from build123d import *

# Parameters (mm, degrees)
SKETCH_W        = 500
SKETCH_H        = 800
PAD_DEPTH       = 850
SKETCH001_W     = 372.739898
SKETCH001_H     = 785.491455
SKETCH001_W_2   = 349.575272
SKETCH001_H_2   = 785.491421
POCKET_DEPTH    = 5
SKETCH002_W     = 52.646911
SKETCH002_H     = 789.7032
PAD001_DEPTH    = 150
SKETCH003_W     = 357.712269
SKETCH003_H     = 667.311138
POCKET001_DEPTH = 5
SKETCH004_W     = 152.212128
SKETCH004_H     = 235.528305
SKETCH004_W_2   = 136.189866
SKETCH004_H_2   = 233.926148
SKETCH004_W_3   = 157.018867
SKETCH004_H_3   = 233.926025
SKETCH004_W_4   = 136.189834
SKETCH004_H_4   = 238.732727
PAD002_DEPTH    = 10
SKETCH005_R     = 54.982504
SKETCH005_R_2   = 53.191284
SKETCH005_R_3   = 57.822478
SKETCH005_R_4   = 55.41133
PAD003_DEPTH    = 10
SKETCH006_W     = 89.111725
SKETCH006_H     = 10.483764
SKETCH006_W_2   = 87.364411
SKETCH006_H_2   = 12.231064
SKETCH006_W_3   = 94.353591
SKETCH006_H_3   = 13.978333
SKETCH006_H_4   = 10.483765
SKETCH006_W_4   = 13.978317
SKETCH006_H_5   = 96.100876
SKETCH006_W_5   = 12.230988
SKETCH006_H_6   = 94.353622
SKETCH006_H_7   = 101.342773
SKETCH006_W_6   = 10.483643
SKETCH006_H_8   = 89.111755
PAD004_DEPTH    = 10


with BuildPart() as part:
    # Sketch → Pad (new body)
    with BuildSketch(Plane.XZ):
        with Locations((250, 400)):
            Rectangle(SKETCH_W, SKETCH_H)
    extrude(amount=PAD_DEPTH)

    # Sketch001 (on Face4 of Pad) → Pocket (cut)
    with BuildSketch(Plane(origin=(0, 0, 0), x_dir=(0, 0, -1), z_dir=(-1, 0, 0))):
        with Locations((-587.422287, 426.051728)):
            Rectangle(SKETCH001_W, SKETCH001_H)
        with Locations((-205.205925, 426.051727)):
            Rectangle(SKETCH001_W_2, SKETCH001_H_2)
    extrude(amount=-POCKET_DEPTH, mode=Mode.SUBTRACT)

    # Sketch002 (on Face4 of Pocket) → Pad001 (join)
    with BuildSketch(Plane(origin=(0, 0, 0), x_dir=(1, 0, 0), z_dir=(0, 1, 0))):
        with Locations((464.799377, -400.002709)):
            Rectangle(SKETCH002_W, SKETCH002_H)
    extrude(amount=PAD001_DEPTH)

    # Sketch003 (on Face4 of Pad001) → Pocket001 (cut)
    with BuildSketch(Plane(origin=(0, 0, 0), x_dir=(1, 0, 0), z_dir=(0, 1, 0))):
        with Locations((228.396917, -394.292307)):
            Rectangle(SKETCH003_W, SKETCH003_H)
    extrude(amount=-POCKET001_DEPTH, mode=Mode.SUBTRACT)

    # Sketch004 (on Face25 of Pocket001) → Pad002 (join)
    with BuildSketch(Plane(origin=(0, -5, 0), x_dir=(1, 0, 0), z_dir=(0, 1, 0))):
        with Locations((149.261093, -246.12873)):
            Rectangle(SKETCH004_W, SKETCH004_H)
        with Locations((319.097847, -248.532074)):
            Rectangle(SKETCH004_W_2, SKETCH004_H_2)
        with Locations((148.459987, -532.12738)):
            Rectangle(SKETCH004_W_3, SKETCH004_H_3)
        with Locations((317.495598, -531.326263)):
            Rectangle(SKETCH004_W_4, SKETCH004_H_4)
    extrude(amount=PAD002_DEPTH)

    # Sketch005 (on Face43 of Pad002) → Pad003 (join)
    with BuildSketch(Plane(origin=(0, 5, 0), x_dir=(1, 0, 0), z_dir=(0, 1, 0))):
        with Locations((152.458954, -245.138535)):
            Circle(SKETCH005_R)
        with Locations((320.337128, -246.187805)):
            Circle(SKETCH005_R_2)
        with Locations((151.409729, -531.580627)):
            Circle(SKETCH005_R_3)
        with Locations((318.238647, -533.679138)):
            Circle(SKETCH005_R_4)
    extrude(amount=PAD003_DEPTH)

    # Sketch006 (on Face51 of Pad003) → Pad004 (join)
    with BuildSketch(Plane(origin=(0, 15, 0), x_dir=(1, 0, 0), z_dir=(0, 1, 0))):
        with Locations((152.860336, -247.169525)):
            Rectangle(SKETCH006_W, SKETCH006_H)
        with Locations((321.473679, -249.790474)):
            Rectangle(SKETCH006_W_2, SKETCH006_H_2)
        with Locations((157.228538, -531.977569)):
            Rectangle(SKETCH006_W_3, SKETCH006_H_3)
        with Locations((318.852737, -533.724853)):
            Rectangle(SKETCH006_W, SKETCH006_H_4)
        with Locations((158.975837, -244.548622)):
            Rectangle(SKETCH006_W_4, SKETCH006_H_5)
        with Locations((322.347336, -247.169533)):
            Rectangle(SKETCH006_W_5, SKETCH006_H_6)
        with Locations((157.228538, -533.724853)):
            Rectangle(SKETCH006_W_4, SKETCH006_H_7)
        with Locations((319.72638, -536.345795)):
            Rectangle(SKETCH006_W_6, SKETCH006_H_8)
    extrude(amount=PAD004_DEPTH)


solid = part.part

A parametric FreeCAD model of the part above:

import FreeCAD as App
import Part
import Sketcher


def add_polygon(sketch, points):
    """Adds a closed chain of lines whose ends are joined by coincident constraints."""
    first, n = sketch.GeometryCount, len(points)
    for a, b in zip(points, points[1:] + points[:1]):
        sketch.addGeometry(Part.LineSegment(App.Vector(*a, 0), App.Vector(*b, 0)), False)
    for i in range(n):
        sketch.addConstraint(Sketcher.Constraint("Coincident", first + i, 2, first + (i + 1) % n, 1))

doc = App.newDocument("Part")
body = doc.addObject("PartDesign::Body", "Body")

# Sketch on XZ plane
sketch1 = body.newObject("Sketcher::SketchObject", "Sketch")
sketch1.AttachmentSupport = (doc.getObject("XZ_Plane"), [""])
sketch1.MapMode = "FlatFace"
add_polygon(sketch1, [(0, 800), (0, 0), (500, 0), (500, 800)])  # lines 0-3
sketch1.addConstraint([
    Sketcher.Constraint("Vertical", 0),
    Sketcher.Constraint("Horizontal", 1),
    Sketcher.Constraint("Vertical", 2),
    Sketcher.Constraint("Horizontal", 3),
    Sketcher.Constraint("Coincident", 0, 2, -1, 1),
    Sketcher.Constraint("DistanceX", 1, 1, 1, 2, 500.0),
    Sketcher.Constraint("DistanceY", 0, 2, 0, 1, 800.0),
])
pad1 = body.newObject("PartDesign::Pad", "Pad")
pad1.Profile = sketch1
pad1.Length = 850

# Sketch on YZ plane
sketch2 = body.newObject("Sketcher::SketchObject", "Sketch001")
sketch2.AttachmentSupport = (doc.getObject("YZ_Plane"), [""])
sketch2.MapMode = "FlatFace"
add_polygon(sketch2, [(-819, 774), (-33, 774), (-33, 401), (-819, 401)])  # lines 0-3
add_polygon(sketch2, [(-819, 380), (-33, 380), (-33, 30), (-819, 30)])  # lines 4-7
sketch2.addConstraint([
    Sketcher.Constraint("Horizontal", 0),
    Sketcher.Constraint("Vertical", 1),
    Sketcher.Constraint("Horizontal", 2),
    Sketcher.Constraint("Vertical", 3),
    Sketcher.Constraint("Horizontal", 4),
    Sketcher.Constraint("Vertical", 5),
    Sketcher.Constraint("Horizontal", 6),
    Sketcher.Constraint("Vertical", 7),
    Sketcher.Constraint("DistanceY", 1, 2, 1, 1, 372.739898),
    Sketcher.Constraint("DistanceX", 0, 2, -1, 1, 33.306001),
    Sketcher.Constraint("DistanceX", 4, 1, 4, 2, 785.491421),
    Sketcher.Constraint("DistanceY", 5, 2, 5, 1, 349.575272),
    Sketcher.Constraint("DistanceX", 0, 1, 0, 2, 785.491455),
    Sketcher.Constraint("DistanceY", -1, 1, 1, 2, 401.052338),
    Sketcher.Constraint("DistanceY", -1, 1, 4, 2, 379.993561),
    Sketcher.Constraint("DistanceX", 2, 2, 4, 2, 785.491439),
])
pocket1 = body.newObject("PartDesign::Pocket", "Pocket")
pocket1.Profile = sketch2
pocket1.Length = 5
pocket1.Reversed = True

# Sketch on XZ plane
sketch3 = body.newObject("Sketcher::SketchObject", "Sketch002")
sketch3.AttachmentSupport = (doc.getObject("XZ_Plane"), [""])
sketch3.MapMode = "FlatFace"
add_polygon(sketch3, [(438, 5), (438, 795), (491, 795), (491, 5)])  # lines 0-3
sketch3.addConstraint([
    Sketcher.Constraint("Vertical", 0),
    Sketcher.Constraint("Horizontal", 1),
    Sketcher.Constraint("Vertical", 2),
    Sketcher.Constraint("Horizontal", 3),
    Sketcher.Constraint("DistanceY", 0, 1, 0, 2, 789.7032),
    Sketcher.Constraint("DistanceX", 1, 1, 1, 2, 52.646911),
    Sketcher.Constraint("DistanceX", -1, 1, 0, 2, 438.475922),
    Sketcher.Constraint("DistanceY", -1, 1, 0, 2, 794.854309),
])
pad2 = body.newObject("PartDesign::Pad", "Pad001")
pad2.Profile = sketch3
pad2.Length = 150
pad2.Reversed = True

# Sketch on XZ plane
sketch4 = body.newObject("Sketcher::SketchObject", "Sketch003")
sketch4.AttachmentSupport = (doc.getObject("XZ_Plane"), [""])
sketch4.MapMode = "FlatFace"
add_polygon(sketch4, [(50, 61), (50, 728), (407, 728), (407, 61)])  # lines 0-3
sketch4.addConstraint([
    Sketcher.Constraint("Vertical", 0),
    Sketcher.Constraint("Horizontal", 1),
    Sketcher.Constraint("Vertical", 2),
    Sketcher.Constraint("Horizontal", 3),
    Sketcher.Constraint("DistanceX", 1, 1, 1, 2, 357.712269),
    Sketcher.Constraint("DistanceY", 0, 1, 0, 2, 667.311138),
    Sketcher.Constraint("DistanceX", -1, 1, 1, 2, 407.253052),
    Sketcher.Constraint("DistanceY", -1, 1, 0, 2, 727.947876),
])
pocket2 = body.newObject("PartDesign::Pocket", "Pocket001")
pocket2.Profile = sketch4
pocket2.Length = 5
pocket2.Reversed = True

# Sketch on XZ plane
sketch5 = body.newObject("Sketcher::SketchObject", "Sketch004")
sketch5.AttachmentSupport = (doc.getObject("XZ_Plane"), [""])
sketch5.MapMode = "FlatFace"
sketch5.AttachmentOffset = App.Placement(App.Vector(0, 0, 5), App.Rotation())
add_polygon(sketch5, [(73, 128), (73, 364), (225, 364), (225, 128)])  # lines 0-3
add_polygon(sketch5, [(251, 132), (251, 365), (387, 365), (387, 132)])  # lines 4-7
add_polygon(sketch5, [(70, 415), (70, 649), (227, 649), (227, 415)])  # lines 8-11
add_polygon(sketch5, [(249, 412), (249, 651), (386, 651), (386, 412)])  # lines 12-15
sketch5.addConstraint([
    Sketcher.Constraint("Vertical", 0),
    Sketcher.Constraint("Horizontal", 1),
    Sketcher.Constraint("Vertical", 2),
    Sketcher.Constraint("Horizontal", 3),
    Sketcher.Constraint("Vertical", 4),
    Sketcher.Constraint("Horizontal", 5),
    Sketcher.Constraint("Vertical", 6),
    Sketcher.Constraint("Horizontal", 7),
    Sketcher.Constraint("Vertical", 8),
    Sketcher.Constraint("Horizontal", 9),
    Sketcher.Constraint("Vertical", 10),
    Sketcher.Constraint("Horizontal", 11),
    Sketcher.Constraint("Vertical", 12),
    Sketcher.Constraint("Horizontal", 13),
    Sketcher.Constraint("Vertical", 14),
    Sketcher.Constraint("Horizontal", 15),
    Sketcher.Constraint("DistanceY", -1, 1, 6, 2, 131.569),
    Sketcher.Constraint("DistanceX", 1, 1, 1, 2, 152.212128),
    Sketcher.Constraint("DistanceY", -1, 1, 14, 2, 411.9599),
    Sketcher.Constraint("DistanceX", 4, 2, 13, 2, 134.587601),
    Sketcher.Constraint("DistanceX", 15, 2, 5, 2, 137.792099),
    Sketcher.Constraint("DistanceX", 5, 1, 5, 2, 136.189866),
    Sketcher.Constraint("DistanceX", 9, 1, 9, 2, 157.018867),
    Sketcher.Constraint("DistanceY", 0, 1, 0, 2, 235.528305),
    Sketcher.Constraint("DistanceY", 4, 1, 4, 2, 233.926148),
    Sketcher.Constraint("DistanceY", 8, 1, 8, 2, 233.926025),
    Sketcher.Constraint("DistanceY", 12, 1, 12, 2, 238.732727),
    Sketcher.Constraint("DistanceX", -1, 1, 0, 2, 73.155029),
    Sketcher.Constraint("DistanceX", -1, 1, 5, 2, 387.19278),
    Sketcher.Constraint("DistanceX", -1, 1, 9, 2, 226.969421),
    Sketcher.Constraint("DistanceY", 2, 2, 4, 2, 237.13057),
    Sketcher.Constraint("DistanceY", 0, 2, 8, 2, 285.19751),
])
pad3 = body.newObject("PartDesign::Pad", "Pad002")
pad3.Profile = sketch5
pad3.Length = 10
pad3.Reversed = True

# Sketch on XZ plane
sketch6 = body.newObject("Sketcher::SketchObject", "Sketch005")
sketch6.AttachmentSupport = (doc.getObject("XZ_Plane"), [""])
sketch6.MapMode = "FlatFace"
sketch6.AttachmentOffset = App.Placement(App.Vector(0, 0, -5), App.Rotation())
sketch6.addGeometry([
    Part.Circle(App.Vector(152, 245, 0), App.Vector(0, 0, 1), 55),
    Part.Circle(App.Vector(320, 246, 0), App.Vector(0, 0, 1), 53),
    Part.Circle(App.Vector(151, 532, 0), App.Vector(0, 0, 1), 58),
    Part.Circle(App.Vector(318, 534, 0), App.Vector(0, 0, 1), 55),
], False)
sketch6.addConstraint([
    Sketcher.Constraint("Diameter", 1, 106.382568),
    Sketcher.Constraint("Diameter", 3, 110.82266),
    Sketcher.Constraint("Diameter", 0, 109.965008),
    Sketcher.Constraint("Diameter", 2, 115.644956),
    Sketcher.Constraint("DistanceX", 2, 3, 1, 3, 168.927399),
    Sketcher.Constraint("DistanceX", -1, 1, 1, 3, 320.337128),
    Sketcher.Constraint("DistanceY", -1, 1, 3, 3, 533.679138),
    Sketcher.Constraint("DistanceY", 0, 3, 1, 3, 1.04927),
    Sketcher.Constraint("DistanceX", 2, 3, 3, 3, 166.828918),
    Sketcher.Constraint("DistanceY", 2, 3, 3, 3, 2.098511),
    Sketcher.Constraint("DistanceX", -1, 1, 0, 3, 152.458954),
    Sketcher.Constraint("DistanceY", -1, 1, 0, 3, 245.138535),
])
pad4 = body.newObject("PartDesign::Pad", "Pad003")
pad4.Profile = sketch6
pad4.Length = 10
pad4.Reversed = True

# Sketch on XZ plane
sketch7 = body.newObject("Sketcher::SketchObject", "Sketch006")
sketch7.AttachmentSupport = (doc.getObject("XZ_Plane"), [""])
sketch7.MapMode = "FlatFace"
sketch7.AttachmentOffset = App.Placement(App.Vector(0, 0, -15), App.Rotation())
add_polygon(sketch7, [(108, 242), (108, 252), (152, 252), (152, 293), (166, 293), (166, 252), (197, 252), (197, 242), (166, 242), (166, 196), (152, 196), (152, 242)])  # lines 0-11
add_polygon(sketch7, [(278, 244), (278, 256), (316, 256), (316, 294), (328, 294), (328, 256), (365, 256), (365, 244), (328, 244), (328, 200), (316, 200), (316, 244)])  # lines 12-23
add_polygon(sketch7, [(110, 525), (110, 539), (150, 539), (150, 584), (164, 584), (164, 539), (204, 539), (204, 525), (164, 525), (164, 483), (150, 483), (150, 525)])  # lines 24-35
add_polygon(sketch7, [(274, 528), (274, 539), (314, 539), (314, 581), (325, 581), (325, 539), (363, 539), (363, 528), (325, 528), (325, 492), (314, 492), (314, 528)])  # lines 36-47
sketch7.addConstraint([
    Sketcher.Constraint("Vertical", 0),
    Sketcher.Constraint("Horizontal", 1),
    Sketcher.Constraint("Vertical", 2),
    Sketcher.Constraint("Horizontal", 3),
    Sketcher.Constraint("Vertical", 4),
    Sketcher.Constraint("Horizontal", 5),
    Sketcher.Constraint("Vertical", 6),
    Sketcher.Constraint("Horizontal", 7),
    Sketcher.Constraint("Vertical", 8),
    Sketcher.Constraint("Horizontal", 9),
    Sketcher.Constraint("Vertical", 10),
    Sketcher.Constraint("Horizontal", 11),
    Sketcher.Constraint("Vertical", 12),
    Sketcher.Constraint("Horizontal", 13),
    Sketcher.Constraint("Vertical", 14),
    Sketcher.Constraint("Horizontal", 15),
    Sketcher.Constraint("Vertical", 16),
    Sketcher.Constraint("Horizontal", 17),
    Sketcher.Constraint("Vertical", 18),
    Sketcher.Constraint("Horizontal", 19),
    Sketcher.Constraint("Vertical", 20),
    Sketcher.Constraint("Horizontal", 21),
    Sketcher.Constraint("Vertical", 22),
    Sketcher.Constraint("Horizontal", 23),
    Sketcher.Constraint("Vertical", 24),
    Sketcher.Constraint("Horizontal", 25),
    Sketcher.Constraint("Vertical", 26),
    Sketcher.Constraint("Horizontal", 27),
    Sketcher.Constraint("Vertical", 28),
    Sketcher.Constraint("Horizontal", 29),
    Sketcher.Constraint("Vertical", 30),
    Sketcher.Constraint("Horizontal", 31),
    Sketcher.Constraint("Vertical", 32),
    Sketcher.Constraint("Horizontal", 33),
    Sketcher.Constraint("Vertical", 34),
    Sketcher.Constraint("Horizontal", 35),
    Sketcher.Constraint("Vertical", 36),
    Sketcher.Constraint("Horizontal", 37),
    Sketcher.Constraint("Vertical", 38),
    Sketcher.Constraint("Horizontal", 39),
    Sketcher.Constraint("Vertical", 40),
    Sketcher.Constraint("Horizontal", 41),
    Sketcher.Constraint("Vertical", 42),
    Sketcher.Constraint("Horizontal", 43),
    Sketcher.Constraint("Vertical", 44),
    Sketcher.Constraint("Horizontal", 45),
    Sketcher.Constraint("Vertical", 46),
    Sketcher.Constraint("Horizontal", 47),
    Sketcher.Constraint("Horizontal", 1, 2, 4, 2),
    Sketcher.Constraint("Horizontal", 7, 2, 10, 2),
    Sketcher.Constraint("Horizontal", 13, 2, 16, 2),
    Sketcher.Constraint("Horizontal", 19, 2, 22, 2),
    Sketcher.Constraint("Horizontal", 25, 2, 28, 2),
    Sketcher.Constraint("Horizontal", 31, 2, 34, 2),
    Sketcher.Constraint("Horizontal", 29, 2, 36, 2),
    Sketcher.Constraint("Horizontal", 37, 2, 40, 2),
    Sketcher.Constraint("Horizontal", 43, 2, 46, 2),
    Sketcher.Constraint("Vertical", 4, 2, 7, 2),
    Sketcher.Constraint("Vertical", 2, 2, 9, 2),
    Sketcher.Constraint("Vertical", 16, 2, 19, 2),
    Sketcher.Constraint("Vertical", 14, 2, 21, 2),
    Sketcher.Constraint("Vertical", 28, 2, 31, 2),
    Sketcher.Constraint("Vertical", 26, 2, 33, 2),
    Sketcher.Constraint("Vertical", 40, 2, 43, 2),
    Sketcher.Constraint("Vertical", 38, 2, 45, 2),
    Sketcher.Constraint("Equal", 9, 27),
    Sketcher.Constraint("Equal", 25, 29),
    Sketcher.Constraint("Equal", 6, 36),
    Sketcher.Constraint("Equal", 34, 38),
    Sketcher.Constraint("Equal", 19, 44),
    Sketcher.Constraint("DistanceX", 13, 1, 13, 2, 38.440368),
    Sketcher.Constraint("DistanceX", 15, 1, 15, 2, 12.230988),
    Sketcher.Constraint("DistanceY", 8, 2, 8, 1, 45.429459),
    Sketcher.Constraint("DistanceY", 20, 2, 20, 1, 43.68222),
    Sketcher.Constraint("DistanceX", -1, 1, 5, 2, 197.416199),
    Sketcher.Constraint("DistanceX", -1, 1, 39, 2, 324.968202),
    Sketcher.Constraint("DistanceX", -1, 1, 41, 2, 363.408599),
    Sketcher.Constraint("DistanceY", 5, 2, 12, 2, 3.494599),
    Sketcher.Constraint("DistanceY", 6, 2, 14, 2, 52.418701),
    Sketcher.Constraint("DistanceX", 25, 2, 2, 2, 1.747299),
    Sketcher.Constraint("DistanceX", 1, 1, 1, 2, 43.682205),
    Sketcher.Constraint("DistanceX", 3, 1, 3, 2, 13.978317),
    Sketcher.Constraint("DistanceX", 5, 1, 5, 2, 31.451203),
    Sketcher.Constraint("DistanceX", 17, 1, 17, 2, 36.693055),
    Sketcher.Constraint("DistanceX", 25, 1, 25, 2, 40.187637),
    Sketcher.Constraint("DistanceX", 37, 1, 37, 2, 40.187684),
    Sketcher.Constraint("DistanceX", 39, 1, 39, 2, 10.483643),
    Sketcher.Constraint("DistanceY", 0, 1, 0, 2, 10.483764),
    Sketcher.Constraint("DistanceY", 2, 1, 2, 2, 40.187653),
    Sketcher.Constraint("DistanceY", 12, 1, 12, 2, 12.231064),
    Sketcher.Constraint("DistanceY", 24, 1, 24, 2, 13.978333),
    Sketcher.Constraint("DistanceY", 26, 1, 26, 2, 45.429504),
    Sketcher.Constraint("DistanceY", 32, 2, 32, 1, 41.934936),
    Sketcher.Constraint("DistanceY", -1, 1, 2, 2, 292.59906),
    Sketcher.Constraint("DistanceX", -1, 1, 13, 2, 316.231842),
    Sketcher.Constraint("DistanceY", -1, 1, 26, 2, 584.396239),
])
pad5 = body.newObject("PartDesign::Pad", "Pad004")
pad5.Profile = sketch7
pad5.Length = 10
pad5.Reversed = True

doc.recompute()
